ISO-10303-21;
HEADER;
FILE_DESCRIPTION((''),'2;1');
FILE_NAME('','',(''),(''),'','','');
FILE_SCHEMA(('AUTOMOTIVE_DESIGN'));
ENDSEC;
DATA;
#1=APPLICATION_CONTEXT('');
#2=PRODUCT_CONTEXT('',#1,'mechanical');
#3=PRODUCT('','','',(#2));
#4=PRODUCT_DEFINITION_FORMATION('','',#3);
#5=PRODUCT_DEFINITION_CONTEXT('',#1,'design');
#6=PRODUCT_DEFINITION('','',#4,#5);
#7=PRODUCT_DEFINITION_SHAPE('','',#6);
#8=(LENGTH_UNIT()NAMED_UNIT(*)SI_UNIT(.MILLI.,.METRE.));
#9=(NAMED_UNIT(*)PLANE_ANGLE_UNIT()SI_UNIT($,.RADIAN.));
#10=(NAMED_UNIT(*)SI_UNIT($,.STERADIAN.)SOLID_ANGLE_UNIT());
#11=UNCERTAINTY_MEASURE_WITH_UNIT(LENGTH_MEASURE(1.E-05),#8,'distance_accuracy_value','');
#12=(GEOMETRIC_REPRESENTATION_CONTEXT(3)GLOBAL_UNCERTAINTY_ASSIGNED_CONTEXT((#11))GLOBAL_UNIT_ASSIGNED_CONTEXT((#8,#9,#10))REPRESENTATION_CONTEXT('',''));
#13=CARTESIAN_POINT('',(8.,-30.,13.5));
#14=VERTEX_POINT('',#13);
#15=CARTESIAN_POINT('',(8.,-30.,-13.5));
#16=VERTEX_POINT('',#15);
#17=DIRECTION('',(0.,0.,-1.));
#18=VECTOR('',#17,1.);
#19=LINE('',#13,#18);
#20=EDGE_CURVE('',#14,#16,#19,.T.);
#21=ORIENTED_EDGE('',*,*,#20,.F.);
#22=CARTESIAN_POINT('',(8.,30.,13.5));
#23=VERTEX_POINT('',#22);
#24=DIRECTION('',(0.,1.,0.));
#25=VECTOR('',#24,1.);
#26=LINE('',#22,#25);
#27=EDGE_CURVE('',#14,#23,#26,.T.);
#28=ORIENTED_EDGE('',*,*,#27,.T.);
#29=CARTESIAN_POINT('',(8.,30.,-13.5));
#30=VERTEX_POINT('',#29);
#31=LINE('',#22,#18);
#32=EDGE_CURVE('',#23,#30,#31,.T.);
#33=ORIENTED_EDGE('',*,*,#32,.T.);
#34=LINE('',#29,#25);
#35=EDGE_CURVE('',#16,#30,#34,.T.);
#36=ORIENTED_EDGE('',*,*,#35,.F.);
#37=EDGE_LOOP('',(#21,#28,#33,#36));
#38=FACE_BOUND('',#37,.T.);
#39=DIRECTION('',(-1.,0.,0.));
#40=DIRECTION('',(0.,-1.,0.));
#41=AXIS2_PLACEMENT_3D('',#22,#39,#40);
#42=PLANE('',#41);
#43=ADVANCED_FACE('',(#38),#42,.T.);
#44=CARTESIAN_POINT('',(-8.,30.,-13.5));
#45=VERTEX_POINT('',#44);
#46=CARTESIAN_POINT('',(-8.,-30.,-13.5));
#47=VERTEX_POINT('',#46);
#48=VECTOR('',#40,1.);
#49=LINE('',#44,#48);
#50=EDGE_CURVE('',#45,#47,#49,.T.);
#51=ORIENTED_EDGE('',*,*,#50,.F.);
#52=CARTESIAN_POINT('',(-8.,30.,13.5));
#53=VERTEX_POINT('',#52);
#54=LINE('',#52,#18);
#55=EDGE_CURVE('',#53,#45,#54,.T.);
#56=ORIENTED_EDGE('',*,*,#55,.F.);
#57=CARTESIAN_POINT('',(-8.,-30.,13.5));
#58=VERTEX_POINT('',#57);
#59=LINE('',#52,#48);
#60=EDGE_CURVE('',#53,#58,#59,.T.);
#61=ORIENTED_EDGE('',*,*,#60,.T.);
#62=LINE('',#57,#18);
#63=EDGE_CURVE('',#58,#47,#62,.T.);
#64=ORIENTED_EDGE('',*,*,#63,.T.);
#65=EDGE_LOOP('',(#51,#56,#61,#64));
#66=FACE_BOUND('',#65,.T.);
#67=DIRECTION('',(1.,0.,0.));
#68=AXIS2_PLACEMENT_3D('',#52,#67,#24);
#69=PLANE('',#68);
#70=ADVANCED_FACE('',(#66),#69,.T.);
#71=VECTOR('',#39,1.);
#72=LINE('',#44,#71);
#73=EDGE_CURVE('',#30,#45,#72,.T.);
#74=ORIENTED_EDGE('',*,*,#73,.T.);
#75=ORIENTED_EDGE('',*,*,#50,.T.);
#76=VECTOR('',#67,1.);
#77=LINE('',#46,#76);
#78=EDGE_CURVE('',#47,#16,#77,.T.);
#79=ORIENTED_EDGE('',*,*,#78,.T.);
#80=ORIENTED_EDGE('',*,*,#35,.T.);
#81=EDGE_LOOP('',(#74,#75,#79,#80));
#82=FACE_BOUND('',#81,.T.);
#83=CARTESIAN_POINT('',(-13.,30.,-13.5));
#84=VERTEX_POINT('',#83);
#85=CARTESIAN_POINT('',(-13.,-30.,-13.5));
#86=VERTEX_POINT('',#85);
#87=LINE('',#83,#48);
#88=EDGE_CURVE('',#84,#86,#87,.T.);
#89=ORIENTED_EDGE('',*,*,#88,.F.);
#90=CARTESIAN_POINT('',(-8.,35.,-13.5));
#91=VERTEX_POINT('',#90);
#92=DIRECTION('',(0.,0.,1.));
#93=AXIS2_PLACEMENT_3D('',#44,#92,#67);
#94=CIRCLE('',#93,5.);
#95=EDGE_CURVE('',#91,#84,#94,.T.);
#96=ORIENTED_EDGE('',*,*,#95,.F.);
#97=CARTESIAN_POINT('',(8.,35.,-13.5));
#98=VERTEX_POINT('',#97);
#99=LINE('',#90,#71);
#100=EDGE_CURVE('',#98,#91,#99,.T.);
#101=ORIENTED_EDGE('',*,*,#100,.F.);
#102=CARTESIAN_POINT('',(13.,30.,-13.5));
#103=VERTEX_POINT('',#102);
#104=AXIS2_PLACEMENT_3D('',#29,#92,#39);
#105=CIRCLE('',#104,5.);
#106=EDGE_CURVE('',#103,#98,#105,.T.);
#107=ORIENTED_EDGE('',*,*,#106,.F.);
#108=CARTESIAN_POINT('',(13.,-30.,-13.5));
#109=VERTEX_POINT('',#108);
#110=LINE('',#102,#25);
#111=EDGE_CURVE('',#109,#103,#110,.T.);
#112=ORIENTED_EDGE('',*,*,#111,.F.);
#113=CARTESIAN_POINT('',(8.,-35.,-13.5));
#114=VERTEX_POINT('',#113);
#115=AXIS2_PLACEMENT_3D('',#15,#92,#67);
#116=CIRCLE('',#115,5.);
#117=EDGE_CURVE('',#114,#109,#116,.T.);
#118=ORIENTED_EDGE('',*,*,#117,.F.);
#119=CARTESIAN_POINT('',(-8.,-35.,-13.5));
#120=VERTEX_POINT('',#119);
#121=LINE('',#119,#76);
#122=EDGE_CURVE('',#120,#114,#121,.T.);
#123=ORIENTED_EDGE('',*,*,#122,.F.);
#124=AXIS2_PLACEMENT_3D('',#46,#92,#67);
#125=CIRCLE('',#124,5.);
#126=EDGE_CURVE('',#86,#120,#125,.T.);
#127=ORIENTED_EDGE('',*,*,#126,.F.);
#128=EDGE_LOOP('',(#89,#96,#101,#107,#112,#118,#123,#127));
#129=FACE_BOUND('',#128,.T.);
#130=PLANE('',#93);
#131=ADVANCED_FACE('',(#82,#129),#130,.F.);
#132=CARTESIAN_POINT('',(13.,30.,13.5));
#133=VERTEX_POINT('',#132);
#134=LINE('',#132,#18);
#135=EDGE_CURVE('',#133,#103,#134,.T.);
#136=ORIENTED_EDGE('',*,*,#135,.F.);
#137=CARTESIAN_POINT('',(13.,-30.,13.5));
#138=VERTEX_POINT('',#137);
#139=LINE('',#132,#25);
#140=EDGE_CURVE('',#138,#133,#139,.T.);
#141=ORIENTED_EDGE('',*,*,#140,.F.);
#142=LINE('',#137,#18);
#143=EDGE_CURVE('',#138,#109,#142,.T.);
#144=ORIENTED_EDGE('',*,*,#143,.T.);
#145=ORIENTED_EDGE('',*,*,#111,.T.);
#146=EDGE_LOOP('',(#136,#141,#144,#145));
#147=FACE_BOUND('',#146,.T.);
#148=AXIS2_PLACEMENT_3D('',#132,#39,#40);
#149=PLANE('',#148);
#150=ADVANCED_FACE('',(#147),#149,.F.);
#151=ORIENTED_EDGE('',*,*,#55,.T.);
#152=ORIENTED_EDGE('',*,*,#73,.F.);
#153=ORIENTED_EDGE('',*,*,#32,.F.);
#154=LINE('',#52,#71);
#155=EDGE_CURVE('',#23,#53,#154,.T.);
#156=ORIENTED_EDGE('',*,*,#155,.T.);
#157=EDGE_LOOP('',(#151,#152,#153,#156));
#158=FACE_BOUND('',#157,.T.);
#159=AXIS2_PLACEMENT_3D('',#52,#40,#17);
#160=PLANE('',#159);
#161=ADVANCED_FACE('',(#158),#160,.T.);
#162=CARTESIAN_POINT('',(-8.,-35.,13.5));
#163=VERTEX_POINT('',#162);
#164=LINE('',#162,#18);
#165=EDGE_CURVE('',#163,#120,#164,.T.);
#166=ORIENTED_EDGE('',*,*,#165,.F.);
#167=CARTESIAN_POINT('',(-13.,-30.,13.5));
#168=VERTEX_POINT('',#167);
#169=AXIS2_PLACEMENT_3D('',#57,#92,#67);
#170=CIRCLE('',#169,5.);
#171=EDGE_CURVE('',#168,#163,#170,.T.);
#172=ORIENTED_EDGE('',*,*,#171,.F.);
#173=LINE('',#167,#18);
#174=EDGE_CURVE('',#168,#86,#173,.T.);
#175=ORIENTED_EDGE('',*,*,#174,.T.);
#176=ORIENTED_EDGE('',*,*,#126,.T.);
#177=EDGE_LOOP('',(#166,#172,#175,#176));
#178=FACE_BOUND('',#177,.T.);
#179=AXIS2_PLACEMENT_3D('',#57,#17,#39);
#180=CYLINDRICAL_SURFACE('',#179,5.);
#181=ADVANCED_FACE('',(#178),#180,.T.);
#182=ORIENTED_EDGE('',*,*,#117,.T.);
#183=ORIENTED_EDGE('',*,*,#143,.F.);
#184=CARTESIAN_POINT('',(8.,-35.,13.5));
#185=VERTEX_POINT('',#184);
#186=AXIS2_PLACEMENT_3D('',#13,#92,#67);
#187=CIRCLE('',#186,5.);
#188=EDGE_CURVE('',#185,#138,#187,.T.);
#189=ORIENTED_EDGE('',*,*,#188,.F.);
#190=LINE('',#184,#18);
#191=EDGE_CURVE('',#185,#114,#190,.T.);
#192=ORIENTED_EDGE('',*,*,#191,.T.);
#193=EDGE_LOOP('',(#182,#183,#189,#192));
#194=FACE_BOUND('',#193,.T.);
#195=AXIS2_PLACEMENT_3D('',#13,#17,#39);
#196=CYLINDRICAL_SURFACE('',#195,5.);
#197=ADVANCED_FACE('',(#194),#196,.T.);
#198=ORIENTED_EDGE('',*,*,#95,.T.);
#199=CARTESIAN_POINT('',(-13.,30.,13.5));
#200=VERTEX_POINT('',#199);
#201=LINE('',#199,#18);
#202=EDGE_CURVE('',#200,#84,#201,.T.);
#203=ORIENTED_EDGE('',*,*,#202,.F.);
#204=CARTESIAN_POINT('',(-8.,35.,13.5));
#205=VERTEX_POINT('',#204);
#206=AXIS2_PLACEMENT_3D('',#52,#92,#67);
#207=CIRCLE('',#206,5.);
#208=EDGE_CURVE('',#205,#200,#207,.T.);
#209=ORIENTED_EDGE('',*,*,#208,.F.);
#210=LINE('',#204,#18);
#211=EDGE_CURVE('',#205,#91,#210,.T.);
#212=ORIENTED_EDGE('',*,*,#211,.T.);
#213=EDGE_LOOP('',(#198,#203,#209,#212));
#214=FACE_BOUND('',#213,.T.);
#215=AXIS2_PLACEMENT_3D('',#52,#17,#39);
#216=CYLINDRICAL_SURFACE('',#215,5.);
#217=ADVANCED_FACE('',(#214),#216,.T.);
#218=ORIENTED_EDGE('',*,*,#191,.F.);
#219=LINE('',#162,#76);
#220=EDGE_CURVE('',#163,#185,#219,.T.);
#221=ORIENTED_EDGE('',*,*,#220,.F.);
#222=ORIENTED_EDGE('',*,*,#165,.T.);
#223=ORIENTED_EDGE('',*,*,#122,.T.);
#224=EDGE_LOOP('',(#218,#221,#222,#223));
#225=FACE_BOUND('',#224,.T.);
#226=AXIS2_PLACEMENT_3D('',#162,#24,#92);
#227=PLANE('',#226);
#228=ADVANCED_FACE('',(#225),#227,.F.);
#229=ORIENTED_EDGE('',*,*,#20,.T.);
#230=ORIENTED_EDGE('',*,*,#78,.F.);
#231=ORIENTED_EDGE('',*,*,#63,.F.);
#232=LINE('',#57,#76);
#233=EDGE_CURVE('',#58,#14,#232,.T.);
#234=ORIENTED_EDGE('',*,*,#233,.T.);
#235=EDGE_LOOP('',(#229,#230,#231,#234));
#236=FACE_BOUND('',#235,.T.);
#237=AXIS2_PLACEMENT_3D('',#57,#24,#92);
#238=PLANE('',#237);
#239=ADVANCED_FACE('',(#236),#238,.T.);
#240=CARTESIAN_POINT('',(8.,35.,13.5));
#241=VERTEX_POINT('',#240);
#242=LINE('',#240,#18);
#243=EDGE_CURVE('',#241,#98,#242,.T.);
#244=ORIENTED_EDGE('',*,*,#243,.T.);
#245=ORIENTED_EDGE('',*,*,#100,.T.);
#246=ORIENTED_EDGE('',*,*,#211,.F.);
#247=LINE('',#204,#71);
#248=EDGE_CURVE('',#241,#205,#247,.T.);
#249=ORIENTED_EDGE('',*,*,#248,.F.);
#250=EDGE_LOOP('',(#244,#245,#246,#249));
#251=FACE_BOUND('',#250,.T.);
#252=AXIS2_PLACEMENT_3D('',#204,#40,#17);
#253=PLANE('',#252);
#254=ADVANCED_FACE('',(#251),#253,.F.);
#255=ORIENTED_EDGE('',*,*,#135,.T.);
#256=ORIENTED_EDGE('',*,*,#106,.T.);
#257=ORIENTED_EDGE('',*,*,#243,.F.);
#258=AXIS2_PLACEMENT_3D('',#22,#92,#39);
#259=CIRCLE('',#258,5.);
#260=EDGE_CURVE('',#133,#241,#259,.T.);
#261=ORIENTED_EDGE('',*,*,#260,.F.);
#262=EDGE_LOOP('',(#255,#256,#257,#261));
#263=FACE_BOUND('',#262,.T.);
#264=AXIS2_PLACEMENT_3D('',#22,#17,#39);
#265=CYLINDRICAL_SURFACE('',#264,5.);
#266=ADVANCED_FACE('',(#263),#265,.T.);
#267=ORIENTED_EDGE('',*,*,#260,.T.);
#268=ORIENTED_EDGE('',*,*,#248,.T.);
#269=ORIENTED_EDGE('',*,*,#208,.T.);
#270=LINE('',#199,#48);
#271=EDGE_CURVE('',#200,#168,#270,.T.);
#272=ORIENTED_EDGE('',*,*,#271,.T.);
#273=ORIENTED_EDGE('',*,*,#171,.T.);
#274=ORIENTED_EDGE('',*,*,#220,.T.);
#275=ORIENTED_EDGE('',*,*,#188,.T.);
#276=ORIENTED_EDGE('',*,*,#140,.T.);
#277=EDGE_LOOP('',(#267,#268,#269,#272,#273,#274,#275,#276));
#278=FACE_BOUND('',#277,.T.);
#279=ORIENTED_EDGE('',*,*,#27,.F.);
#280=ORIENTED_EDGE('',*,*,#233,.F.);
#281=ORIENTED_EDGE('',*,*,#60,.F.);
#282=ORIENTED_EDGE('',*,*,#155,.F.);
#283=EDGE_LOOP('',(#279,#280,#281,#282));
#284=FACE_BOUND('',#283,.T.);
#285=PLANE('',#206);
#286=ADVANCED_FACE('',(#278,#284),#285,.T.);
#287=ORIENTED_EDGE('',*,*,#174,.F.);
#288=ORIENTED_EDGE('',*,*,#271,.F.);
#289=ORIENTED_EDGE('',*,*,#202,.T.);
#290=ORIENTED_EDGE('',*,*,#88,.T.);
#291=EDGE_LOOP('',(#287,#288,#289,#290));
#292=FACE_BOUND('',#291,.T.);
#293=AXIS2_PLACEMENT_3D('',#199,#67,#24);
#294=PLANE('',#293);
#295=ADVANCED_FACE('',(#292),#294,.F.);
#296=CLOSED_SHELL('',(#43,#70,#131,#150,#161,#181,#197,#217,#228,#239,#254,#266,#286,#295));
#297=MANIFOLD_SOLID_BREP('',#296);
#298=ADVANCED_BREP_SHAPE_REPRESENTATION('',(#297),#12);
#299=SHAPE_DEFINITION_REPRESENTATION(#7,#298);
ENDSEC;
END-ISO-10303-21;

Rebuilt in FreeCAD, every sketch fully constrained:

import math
import FreeCAD as App
import Part
import Sketcher
Q = App.Units.Quantity


def add_polygon(sketch, points):
    """Adds a closed chain of lines whose ends are joined by coincident constraints."""
    first, n = sketch.GeometryCount, len(points)
    for a, b in zip(points, points[1:] + points[:1]):
        sketch.addGeometry(Part.LineSegment(App.Vector(*a, 0), App.Vector(*b, 0)), False)
    for i in range(n):
        sketch.addConstraint(Sketcher.Constraint("Coincident", first + i, 2, first + (i + 1) % n, 1))

doc = App.newDocument("Part")
params = doc.addObject("Spreadsheet::Sheet", "Params")
for row, (alias, value) in enumerate([
    ("sketch1_radius", "5 mm"),
    ("sketch1_width", "16 mm"),
    ("sketch1_height", "60 mm"),
    ("pad1_length", "27 mm"),
], start=1):
    params.set(f"A{row}", alias)
    params.set(f"B{row}", "=" + value)
    params.setAlias(f"B{row}", alias)

body = doc.addObject("PartDesign::Body", "Body")

sketch1 = doc.addObject("Sketcher::SketchObject", "Sketch")
body.addObject(sketch1)
sketch1.AttachmentSupport = (doc.XY_Plane, [""])
sketch1.MapMode = "FlatFace"
sketch1.addGeometry(Part.LineSegment(App.Vector(8, 35, 0), App.Vector(-8, 35, 0)), False)
sketch1.addGeometry(Part.ArcOfCircle(Part.Circle(App.Vector(-8, 30, 0), App.Vector(0, 0, 1), 5), math.radians(90), math.radians(180)), False)
sketch1.addGeometry(Part.LineSegment(App.Vector(-13, 30, 0), App.Vector(-13, -30, 0)), False)
sketch1.addGeometry(Part.ArcOfCircle(Part.Circle(App.Vector(-8, -30, 0), App.Vector(0, 0, 1), 5), math.radians(180), math.radians(270)), False)
sketch1.addGeometry(Part.LineSegment(App.Vector(-8, -35, 0), App.Vector(8, -35, 0)), False)
sketch1.addGeometry(Part.ArcOfCircle(Part.Circle(App.Vector(8, -30, 0), App.Vector(0, 0, 1), 5), math.radians(-90), math.radians(0)), False)
sketch1.addGeometry(Part.LineSegment(App.Vector(13, -30, 0), App.Vector(13, 30, 0)), False)
sketch1.addGeometry(Part.ArcOfCircle(Part.Circle(App.Vector(8, 30, 0), App.Vector(0, 0, 1), 5), math.radians(0), math.radians(90)), False)
add_polygon(sketch1, [(-8, -30), (-8, 30), (8, 30), (8, -30)])
sketch1.addConstraint([
    Sketcher.Constraint("Tangent", 0, 2, 1, 1),
    Sketcher.Constraint("Tangent", 1, 2, 2, 1),
    Sketcher.Constraint("Tangent", 2, 2, 3, 1),
    Sketcher.Constraint("Tangent", 3, 2, 4, 1),
    Sketcher.Constraint("Tangent", 4, 2, 5, 1),
    Sketcher.Constraint("Tangent", 5, 2, 6, 1),
    Sketcher.Constraint("Tangent", 6, 2, 7, 1),
    Sketcher.Constraint("Tangent", 7, 2, 0, 1),
    Sketcher.Constraint("Horizontal", 0),
    Sketcher.Constraint("Vertical", 2),
    Sketcher.Constraint("Horizontal", 4),
    Sketcher.Constraint("Vertical", 6),
    Sketcher.Constraint("Vertical", 8),
    Sketcher.Constraint("Horizontal", 9),
    Sketcher.Constraint("Vertical", 10),
    Sketcher.Constraint("Horizontal", 11),
    Sketcher.Constraint("Coincident", 8, 2, 1, 3),
    Sketcher.Constraint("Coincident", 9, 2, 7, 3),
    Sketcher.Constraint("Coincident", 10, 2, 5, 3),
    Sketcher.Constraint("Equal", 1, 3),
    Sketcher.Constraint("Symmetric", 1, 3, 5, 3, -1, 1),
    Sketcher.Constraint("Radius", 1, Q("5 mm")),
    Sketcher.Constraint("DistanceX", 0, 2, 0, 1, Q("16 mm")),
    Sketcher.Constraint("DistanceY", 2, 2, 2, 1, Q("60 mm")),
])
sketch1.setExpression("Constraints[25]", "Params.sketch1_radius")
sketch1.setExpression("Constraints[26]", "Params.sketch1_width")
sketch1.setExpression("Constraints[27]", "Params.sketch1_height")
pad1 = doc.addObject("PartDesign::Pad", "Pad")
body.addObject(pad1)
pad1.Profile = sketch1
pad1.setExpression("Length", "Params.pad1_length")
pad1.Midplane = True

doc.recompute()
